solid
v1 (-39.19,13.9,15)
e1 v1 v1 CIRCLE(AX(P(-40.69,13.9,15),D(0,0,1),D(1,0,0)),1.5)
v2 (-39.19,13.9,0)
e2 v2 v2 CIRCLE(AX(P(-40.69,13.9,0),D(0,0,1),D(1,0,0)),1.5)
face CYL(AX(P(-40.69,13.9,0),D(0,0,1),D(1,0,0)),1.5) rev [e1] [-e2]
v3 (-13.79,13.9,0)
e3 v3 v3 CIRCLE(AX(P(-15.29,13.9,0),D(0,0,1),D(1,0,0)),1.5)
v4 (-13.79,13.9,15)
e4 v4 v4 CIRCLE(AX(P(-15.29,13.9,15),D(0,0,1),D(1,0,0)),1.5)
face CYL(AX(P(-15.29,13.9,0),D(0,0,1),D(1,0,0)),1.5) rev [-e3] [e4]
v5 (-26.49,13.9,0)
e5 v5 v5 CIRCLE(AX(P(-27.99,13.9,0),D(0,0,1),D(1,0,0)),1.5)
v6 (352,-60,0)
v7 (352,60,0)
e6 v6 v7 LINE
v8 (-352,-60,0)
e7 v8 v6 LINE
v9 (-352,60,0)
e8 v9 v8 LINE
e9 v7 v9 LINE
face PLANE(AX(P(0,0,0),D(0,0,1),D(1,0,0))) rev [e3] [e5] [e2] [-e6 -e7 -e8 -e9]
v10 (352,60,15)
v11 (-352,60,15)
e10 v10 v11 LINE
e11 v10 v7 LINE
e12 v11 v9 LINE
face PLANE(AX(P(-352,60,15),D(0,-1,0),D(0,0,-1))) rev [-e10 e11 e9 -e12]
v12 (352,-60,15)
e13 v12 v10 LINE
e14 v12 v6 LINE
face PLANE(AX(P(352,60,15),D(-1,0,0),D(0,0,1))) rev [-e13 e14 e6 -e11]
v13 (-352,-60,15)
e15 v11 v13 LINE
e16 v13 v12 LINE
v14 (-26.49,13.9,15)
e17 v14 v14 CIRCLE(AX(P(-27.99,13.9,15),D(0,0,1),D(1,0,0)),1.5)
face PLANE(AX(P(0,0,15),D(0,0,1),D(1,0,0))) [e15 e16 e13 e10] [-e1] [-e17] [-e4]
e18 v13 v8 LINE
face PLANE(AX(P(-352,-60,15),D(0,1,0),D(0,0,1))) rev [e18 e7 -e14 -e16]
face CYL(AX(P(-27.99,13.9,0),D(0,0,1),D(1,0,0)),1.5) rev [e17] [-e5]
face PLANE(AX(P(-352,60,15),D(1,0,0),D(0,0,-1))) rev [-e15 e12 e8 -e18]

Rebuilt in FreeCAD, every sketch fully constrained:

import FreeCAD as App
import Part
import Sketcher
Q = App.Units.Quantity


def add_polygon(sketch, points):
    """Adds a closed chain of lines whose ends are joined by coincident constraints."""
    first, n = sketch.GeometryCount, len(points)
    for a, b in zip(points, points[1:] + points[:1]):
        sketch.addGeometry(Part.LineSegment(App.Vector(*a, 0), App.Vector(*b, 0)), False)
    for i in range(n):
        sketch.addConstraint(Sketcher.Constraint("Coincident", first + i, 2, first + (i + 1) % n, 1))

doc = App.newDocument("Part")
body = doc.addObject("PartDesign::Body", "Body")

# Sketch on XY plane
sketch1 = body.newObject("Sketcher::SketchObject", "Sketch")
sketch1.AttachmentSupport = (doc.getObject("XY_Plane"), [""])
sketch1.MapMode = "FlatFace"
add_polygon(sketch1, [(-352, 60), (-352, -60), (352, -60), (352, 60)])  # lines 0-3
sketch1.addConstraint([
    Sketcher.Constraint("Vertical", 0),
    Sketcher.Constraint("Horizontal", 1),
    Sketcher.Constraint("Vertical", 2),
    Sketcher.Constraint("Horizontal", 3),
    Sketcher.Constraint("Symmetric", 0, 2, 2, 2, -1, 1),
    Sketcher.Constraint("DistanceX", 1, 1, 1, 2, Q("704 mm")),
    Sketcher.Constraint("DistanceY", 0, 2, 0, 1, Q("120 mm")),
])
pad1 = body.newObject("PartDesign::Pad", "Pad")
pad1.Profile = sketch1
pad1.Length = 15

# Sketch on XY plane
sketch2 = body.newObject("Sketcher::SketchObject", "Sketch001")
sketch2.AttachmentSupport = (doc.getObject("XY_Plane"), [""])
sketch2.MapMode = "FlatFace"
sketch2.AttachmentOffset = App.Placement(App.Vector(0, 0, 15), App.Rotation())
sketch2.addGeometry([
    Part.Circle(App.Vector(-15.3, 13.9, 0), App.Vector(0, 0, 1), 1.5),
    Part.Circle(App.Vector(-28, 13.9, 0), App.Vector(0, 0, 1), 1.5),
    Part.Circle(App.Vector(-40.7, 13.9, 0), App.Vector(0, 0, 1), 1.5),
], False)
sketch2.addConstraint([
    Sketcher.Constraint("Equal", 0, 1),
    Sketcher.Constraint("Equal", 1, 2),
    Sketcher.Constraint("Horizontal", 0, 3, 1, 3),
    Sketcher.Constraint("Horizontal", 1, 3, 2, 3),
    Sketcher.Constraint("Diameter", 0, Q("3 mm")),
    Sketcher.Constraint("DistanceY", -1, 1, 0, 3, Q("13.9 mm")),
    Sketcher.Constraint("DistanceX", 1, 3, 0, 3, Q("12.7 mm")),
    Sketcher.Constraint("DistanceX", 2, 3, 1, 3, Q("12.7 mm")),
    Sketcher.Constraint("DistanceX", 0, 3, -1, 1, Q("15.29 mm")),
])
pocket1 = body.newObject("PartDesign::Pocket", "Pocket")
pocket1.Profile = sketch2
pocket1.Type = "ThroughAll"

doc.recompute()
